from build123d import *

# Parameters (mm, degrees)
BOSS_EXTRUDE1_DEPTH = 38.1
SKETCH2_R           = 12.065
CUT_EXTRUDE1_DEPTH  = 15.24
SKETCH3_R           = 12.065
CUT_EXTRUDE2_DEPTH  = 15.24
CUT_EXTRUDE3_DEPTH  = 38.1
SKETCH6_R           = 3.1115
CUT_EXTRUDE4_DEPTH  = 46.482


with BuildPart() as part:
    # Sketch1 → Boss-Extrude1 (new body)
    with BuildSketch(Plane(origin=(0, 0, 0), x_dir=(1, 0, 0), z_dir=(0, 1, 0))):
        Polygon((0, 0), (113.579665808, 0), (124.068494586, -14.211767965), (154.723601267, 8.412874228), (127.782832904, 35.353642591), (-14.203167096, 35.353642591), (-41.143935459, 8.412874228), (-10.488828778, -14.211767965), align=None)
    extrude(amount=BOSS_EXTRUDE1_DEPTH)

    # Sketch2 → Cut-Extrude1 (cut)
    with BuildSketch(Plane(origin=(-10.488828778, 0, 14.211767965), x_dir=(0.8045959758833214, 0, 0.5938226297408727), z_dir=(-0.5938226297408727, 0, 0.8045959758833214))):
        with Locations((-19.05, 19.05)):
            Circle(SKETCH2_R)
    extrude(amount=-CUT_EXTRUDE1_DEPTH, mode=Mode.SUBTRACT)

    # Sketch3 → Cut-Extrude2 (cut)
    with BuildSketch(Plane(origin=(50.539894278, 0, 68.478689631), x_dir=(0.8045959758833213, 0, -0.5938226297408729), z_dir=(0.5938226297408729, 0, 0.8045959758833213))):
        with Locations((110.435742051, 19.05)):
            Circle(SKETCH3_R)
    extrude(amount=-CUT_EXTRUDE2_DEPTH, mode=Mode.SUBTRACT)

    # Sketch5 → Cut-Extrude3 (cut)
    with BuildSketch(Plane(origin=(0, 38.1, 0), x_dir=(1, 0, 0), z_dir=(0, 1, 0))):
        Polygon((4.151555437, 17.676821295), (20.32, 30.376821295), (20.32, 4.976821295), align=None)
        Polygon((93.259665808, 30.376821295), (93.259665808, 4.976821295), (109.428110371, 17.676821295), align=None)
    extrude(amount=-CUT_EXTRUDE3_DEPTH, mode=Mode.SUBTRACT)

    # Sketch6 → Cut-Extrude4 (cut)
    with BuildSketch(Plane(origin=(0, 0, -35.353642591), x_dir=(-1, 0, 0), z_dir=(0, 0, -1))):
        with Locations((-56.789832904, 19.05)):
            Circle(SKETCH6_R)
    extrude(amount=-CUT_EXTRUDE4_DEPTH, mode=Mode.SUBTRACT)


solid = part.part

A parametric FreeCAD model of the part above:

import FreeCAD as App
import Part
import Sketcher

V = App.Vector
Q = App.Units.Quantity


def add_polygon(sketch, points):
    """Adds a closed chain of lines whose ends are joined by coincident constraints."""
    first, n = sketch.GeometryCount, len(points)
    for a, b in zip(points, points[1:] + points[:1]):
        sketch.addGeometry(Part.LineSegment(App.Vector(*a, 0), App.Vector(*b, 0)), False)
    for i in range(n):
        sketch.addConstraint(Sketcher.Constraint("Coincident", first + i, 2, first + (i + 1) % n, 1))

doc = App.newDocument("Part")
params = doc.addObject("Spreadsheet::Sheet", "Params")
for row, (alias, value) in enumerate([
    ("sketch1_length", "1.5 in"),
    ("sketch1_width", "5.59 in"),
    ("pad1_length", "1.5 in"),
    ("sketch2_diameter", "0.95 in"),
    ("pocket1_length", "0.6 in"),
    ("sketch3_diameter", "0.95 in"),
    ("pocket2_length", "0.6 in"),
    ("sketch4_height", "1 in"),
    ("pocket3_length", "1.5 in"),
    ("sketch5_diameter", "0.245 in"),
    ("pocket4_length", "1.83 in"),
], start=1):
    params.set(f"A{row}", alias)
    params.set(f"B{row}", "=" + value)
    params.setAlias(f"B{row}", alias)

body = doc.addObject("PartDesign::Body", "Body")

# Sketch on XZ plane
sketch1 = body.newObject("Sketcher::SketchObject", "Sketch")
sketch1.AttachmentSupport = (doc.getObject("XZ_Plane"), [""])
sketch1.MapMode = "FlatFace"
add_polygon(sketch1, [(0, 0), (113.579666, 0), (124.068495, 14.211768), (154.723601, -8.412874), (127.782833, -35.353643), (-14.203167, -35.353643), (-41.143935, -8.412874), (-10.488829, 14.211768)])  # lines 0-7
sketch1.addConstraint([
    Sketcher.Constraint("Horizontal", 0),
    Sketcher.Constraint("Horizontal", 4),
    Sketcher.Constraint("Coincident", 7, 2, -1, 1),
    Sketcher.Constraint("Perpendicular", 1, 2),
    Sketcher.Constraint("Perpendicular", 3, 5),
    Sketcher.Constraint("Perpendicular", 6, 7),
    Sketcher.Constraint("Horizontal", 2, 2, 5, 2),
    Sketcher.Constraint("Horizontal", 1, 2, 6, 2),
    Sketcher.Constraint("Equal", 2, 3),
    Sketcher.Constraint("Equal", 3, 5),
    Sketcher.Constraint("Equal", 5, 6),
    Sketcher.Constraint("Distance", 2, Q("1.5 in")),
    Sketcher.Constraint("DistanceX", 4, 2, 4, 1, Q("5.59 in")),
    Sketcher.Constraint("DistanceX", -1, 1, 2, 2, Q("154.723601 mm")),
    Sketcher.Constraint("DistanceX", 6, 2, -1, 1, Q("10.488829 mm")),
])
sketch1.setExpression("Constraints[19]", "Params.sketch1_length")
sketch1.setExpression("Constraints[20]", "Params.sketch1_width")
pad1 = body.newObject("PartDesign::Pad", "Pad")
pad1.Profile = sketch1
pad1.setExpression("Length", "Params.pad1_length")
pad1.Reversed = True

# Sketch on an angled plane
sketch2 = body.newObject("Sketcher::SketchObject", "Sketch001")
sketch2.Placement = App.Placement(V(-10.488829, 0, 14.211768), App.Rotation(V(0.804595976, 0, 0.59382263), V(0, 1, 0), V(-0.59382263, 0, 0.804595976), "ZXY"))
sketch2.addGeometry(Part.Circle(V(-19.05, 19.05, 0), V(0, 0, 1), 12.065), False)
sketch2.addConstraint([
    Sketcher.Constraint("Diameter", 0, Q("0.95 in")),
    Sketcher.Constraint("DistanceX", 0, 3, -1, 1, Q("0.75 in")),
    Sketcher.Constraint("DistanceY", -1, 1, 0, 3, Q("0.75 in")),
])
sketch2.setExpression("Constraints[0]", "Params.sketch2_diameter")
pocket1 = body.newObject("PartDesign::Pocket", "Pocket")
pocket1.Profile = sketch2
pocket1.setExpression("Length", "Params.pocket1_length")

# Sketch on an angled plane
sketch3 = body.newObject("Sketcher::SketchObject", "Sketch002")
sketch3.Placement = App.Placement(V(50.539894, 0, 68.47869), App.Rotation(V(0.804595976, 0, -0.59382263), V(0, 1, 0), V(0.59382263, 0, 0.804595976), "ZXY"))
sketch3.addGeometry(Part.Circle(V(110.435742, 19.05, 0), V(0, 0, 1), 12.065), False)
sketch3.addConstraint([
    Sketcher.Constraint("Diameter", 0, Q("0.95 in")),
    Sketcher.Constraint("DistanceY", -1, 1, 0, 3, Q("0.75 in")),
    Sketcher.Constraint("DistanceX", -1, 1, 0, 3, Q("110.435742 mm")),
])
sketch3.setExpression("Constraints[0]", "Params.sketch3_diameter")
pocket2 = body.newObject("PartDesign::Pocket", "Pocket001")
pocket2.Profile = sketch3
pocket2.setExpression("Length", "Params.pocket2_length")

# Sketch on XZ plane
sketch4 = body.newObject("Sketcher::SketchObject", "Sketch003")
sketch4.AttachmentSupport = (doc.getObject("XZ_Plane"), [""])
sketch4.MapMode = "FlatFace"
sketch4.AttachmentOffset = App.Placement(V(0, 0, -1.5 * 25.4), App.Rotation())
add_polygon(sketch4, [(20.32, -30.376821), (4.151555, -17.676821), (20.32, -4.976821)])  # lines 0-2
add_polygon(sketch4, [(93.259666, -30.376821), (93.259666, -4.976821), (109.42811, -17.676821)])  # lines 3-5
sketch4.addConstraint([
    Sketcher.Constraint("Vertical", 2),
    Sketcher.Constraint("Vertical", 3),
    Sketcher.Constraint("Parallel", 0, 4),
    Sketcher.Constraint("Parallel", 1, 5),
    Sketcher.Constraint("Horizontal", 1, 2, 3, 2),
    Sketcher.Constraint("Horizontal", 0, 2, 4, 2),
    Sketcher.Constraint("Horizontal", 2, 2, 5, 2),
    Sketcher.Constraint("DistanceY", 2, 2, 2, 1, Q("1 in")),
    Sketcher.Constraint("DistanceX", -1, 1, 1, 2, Q("0.8 in")),
    Sketcher.Constraint("Distance", 0, Q("20.559878 mm")),
    Sketcher.Constraint("DistanceY", 0, 2, -1, 1, Q("17.676821 mm")),
    Sketcher.Constraint("DistanceX", -1, 1, 4, 2, Q("109.42811 mm")),
])
sketch4.setExpression("Constraints[13]", "Params.sketch4_height")
pocket3 = body.newObject("PartDesign::Pocket", "Pocket002")
pocket3.Profile = sketch4
pocket3.setExpression("Length", "Params.pocket3_length")
pocket3.Reversed = True

# Sketch on XY plane
sketch5 = body.newObject("Sketcher::SketchObject", "Sketch004")
sketch5.AttachmentSupport = (doc.getObject("XY_Plane"), [""])
sketch5.MapMode = "FlatFace"
sketch5.AttachmentOffset = App.Placement(V(0, 0, -35.353643), App.Rotation())
sketch5.addGeometry(Part.Circle(V(56.789833, 19.05, 0), V(0, 0, 1), 3.1115), False)
sketch5.addConstraint([
    Sketcher.Constraint("Diameter", 0, Q("0.245 in")),
    Sketcher.Constraint("DistanceY", -1, 1, 0, 3, Q("0.75 in")),
    Sketcher.Constraint("DistanceX", -1, 1, 0, 3, Q("56.789833 mm")),
])
sketch5.setExpression("Constraints[0]", "Params.sketch5_diameter")
pocket4 = body.newObject("PartDesign::Pocket", "Pocket003")
pocket4.Profile = sketch5
pocket4.setExpression("Length", "Params.pocket4_length")
pocket4.Reversed = True

doc.recompute()
